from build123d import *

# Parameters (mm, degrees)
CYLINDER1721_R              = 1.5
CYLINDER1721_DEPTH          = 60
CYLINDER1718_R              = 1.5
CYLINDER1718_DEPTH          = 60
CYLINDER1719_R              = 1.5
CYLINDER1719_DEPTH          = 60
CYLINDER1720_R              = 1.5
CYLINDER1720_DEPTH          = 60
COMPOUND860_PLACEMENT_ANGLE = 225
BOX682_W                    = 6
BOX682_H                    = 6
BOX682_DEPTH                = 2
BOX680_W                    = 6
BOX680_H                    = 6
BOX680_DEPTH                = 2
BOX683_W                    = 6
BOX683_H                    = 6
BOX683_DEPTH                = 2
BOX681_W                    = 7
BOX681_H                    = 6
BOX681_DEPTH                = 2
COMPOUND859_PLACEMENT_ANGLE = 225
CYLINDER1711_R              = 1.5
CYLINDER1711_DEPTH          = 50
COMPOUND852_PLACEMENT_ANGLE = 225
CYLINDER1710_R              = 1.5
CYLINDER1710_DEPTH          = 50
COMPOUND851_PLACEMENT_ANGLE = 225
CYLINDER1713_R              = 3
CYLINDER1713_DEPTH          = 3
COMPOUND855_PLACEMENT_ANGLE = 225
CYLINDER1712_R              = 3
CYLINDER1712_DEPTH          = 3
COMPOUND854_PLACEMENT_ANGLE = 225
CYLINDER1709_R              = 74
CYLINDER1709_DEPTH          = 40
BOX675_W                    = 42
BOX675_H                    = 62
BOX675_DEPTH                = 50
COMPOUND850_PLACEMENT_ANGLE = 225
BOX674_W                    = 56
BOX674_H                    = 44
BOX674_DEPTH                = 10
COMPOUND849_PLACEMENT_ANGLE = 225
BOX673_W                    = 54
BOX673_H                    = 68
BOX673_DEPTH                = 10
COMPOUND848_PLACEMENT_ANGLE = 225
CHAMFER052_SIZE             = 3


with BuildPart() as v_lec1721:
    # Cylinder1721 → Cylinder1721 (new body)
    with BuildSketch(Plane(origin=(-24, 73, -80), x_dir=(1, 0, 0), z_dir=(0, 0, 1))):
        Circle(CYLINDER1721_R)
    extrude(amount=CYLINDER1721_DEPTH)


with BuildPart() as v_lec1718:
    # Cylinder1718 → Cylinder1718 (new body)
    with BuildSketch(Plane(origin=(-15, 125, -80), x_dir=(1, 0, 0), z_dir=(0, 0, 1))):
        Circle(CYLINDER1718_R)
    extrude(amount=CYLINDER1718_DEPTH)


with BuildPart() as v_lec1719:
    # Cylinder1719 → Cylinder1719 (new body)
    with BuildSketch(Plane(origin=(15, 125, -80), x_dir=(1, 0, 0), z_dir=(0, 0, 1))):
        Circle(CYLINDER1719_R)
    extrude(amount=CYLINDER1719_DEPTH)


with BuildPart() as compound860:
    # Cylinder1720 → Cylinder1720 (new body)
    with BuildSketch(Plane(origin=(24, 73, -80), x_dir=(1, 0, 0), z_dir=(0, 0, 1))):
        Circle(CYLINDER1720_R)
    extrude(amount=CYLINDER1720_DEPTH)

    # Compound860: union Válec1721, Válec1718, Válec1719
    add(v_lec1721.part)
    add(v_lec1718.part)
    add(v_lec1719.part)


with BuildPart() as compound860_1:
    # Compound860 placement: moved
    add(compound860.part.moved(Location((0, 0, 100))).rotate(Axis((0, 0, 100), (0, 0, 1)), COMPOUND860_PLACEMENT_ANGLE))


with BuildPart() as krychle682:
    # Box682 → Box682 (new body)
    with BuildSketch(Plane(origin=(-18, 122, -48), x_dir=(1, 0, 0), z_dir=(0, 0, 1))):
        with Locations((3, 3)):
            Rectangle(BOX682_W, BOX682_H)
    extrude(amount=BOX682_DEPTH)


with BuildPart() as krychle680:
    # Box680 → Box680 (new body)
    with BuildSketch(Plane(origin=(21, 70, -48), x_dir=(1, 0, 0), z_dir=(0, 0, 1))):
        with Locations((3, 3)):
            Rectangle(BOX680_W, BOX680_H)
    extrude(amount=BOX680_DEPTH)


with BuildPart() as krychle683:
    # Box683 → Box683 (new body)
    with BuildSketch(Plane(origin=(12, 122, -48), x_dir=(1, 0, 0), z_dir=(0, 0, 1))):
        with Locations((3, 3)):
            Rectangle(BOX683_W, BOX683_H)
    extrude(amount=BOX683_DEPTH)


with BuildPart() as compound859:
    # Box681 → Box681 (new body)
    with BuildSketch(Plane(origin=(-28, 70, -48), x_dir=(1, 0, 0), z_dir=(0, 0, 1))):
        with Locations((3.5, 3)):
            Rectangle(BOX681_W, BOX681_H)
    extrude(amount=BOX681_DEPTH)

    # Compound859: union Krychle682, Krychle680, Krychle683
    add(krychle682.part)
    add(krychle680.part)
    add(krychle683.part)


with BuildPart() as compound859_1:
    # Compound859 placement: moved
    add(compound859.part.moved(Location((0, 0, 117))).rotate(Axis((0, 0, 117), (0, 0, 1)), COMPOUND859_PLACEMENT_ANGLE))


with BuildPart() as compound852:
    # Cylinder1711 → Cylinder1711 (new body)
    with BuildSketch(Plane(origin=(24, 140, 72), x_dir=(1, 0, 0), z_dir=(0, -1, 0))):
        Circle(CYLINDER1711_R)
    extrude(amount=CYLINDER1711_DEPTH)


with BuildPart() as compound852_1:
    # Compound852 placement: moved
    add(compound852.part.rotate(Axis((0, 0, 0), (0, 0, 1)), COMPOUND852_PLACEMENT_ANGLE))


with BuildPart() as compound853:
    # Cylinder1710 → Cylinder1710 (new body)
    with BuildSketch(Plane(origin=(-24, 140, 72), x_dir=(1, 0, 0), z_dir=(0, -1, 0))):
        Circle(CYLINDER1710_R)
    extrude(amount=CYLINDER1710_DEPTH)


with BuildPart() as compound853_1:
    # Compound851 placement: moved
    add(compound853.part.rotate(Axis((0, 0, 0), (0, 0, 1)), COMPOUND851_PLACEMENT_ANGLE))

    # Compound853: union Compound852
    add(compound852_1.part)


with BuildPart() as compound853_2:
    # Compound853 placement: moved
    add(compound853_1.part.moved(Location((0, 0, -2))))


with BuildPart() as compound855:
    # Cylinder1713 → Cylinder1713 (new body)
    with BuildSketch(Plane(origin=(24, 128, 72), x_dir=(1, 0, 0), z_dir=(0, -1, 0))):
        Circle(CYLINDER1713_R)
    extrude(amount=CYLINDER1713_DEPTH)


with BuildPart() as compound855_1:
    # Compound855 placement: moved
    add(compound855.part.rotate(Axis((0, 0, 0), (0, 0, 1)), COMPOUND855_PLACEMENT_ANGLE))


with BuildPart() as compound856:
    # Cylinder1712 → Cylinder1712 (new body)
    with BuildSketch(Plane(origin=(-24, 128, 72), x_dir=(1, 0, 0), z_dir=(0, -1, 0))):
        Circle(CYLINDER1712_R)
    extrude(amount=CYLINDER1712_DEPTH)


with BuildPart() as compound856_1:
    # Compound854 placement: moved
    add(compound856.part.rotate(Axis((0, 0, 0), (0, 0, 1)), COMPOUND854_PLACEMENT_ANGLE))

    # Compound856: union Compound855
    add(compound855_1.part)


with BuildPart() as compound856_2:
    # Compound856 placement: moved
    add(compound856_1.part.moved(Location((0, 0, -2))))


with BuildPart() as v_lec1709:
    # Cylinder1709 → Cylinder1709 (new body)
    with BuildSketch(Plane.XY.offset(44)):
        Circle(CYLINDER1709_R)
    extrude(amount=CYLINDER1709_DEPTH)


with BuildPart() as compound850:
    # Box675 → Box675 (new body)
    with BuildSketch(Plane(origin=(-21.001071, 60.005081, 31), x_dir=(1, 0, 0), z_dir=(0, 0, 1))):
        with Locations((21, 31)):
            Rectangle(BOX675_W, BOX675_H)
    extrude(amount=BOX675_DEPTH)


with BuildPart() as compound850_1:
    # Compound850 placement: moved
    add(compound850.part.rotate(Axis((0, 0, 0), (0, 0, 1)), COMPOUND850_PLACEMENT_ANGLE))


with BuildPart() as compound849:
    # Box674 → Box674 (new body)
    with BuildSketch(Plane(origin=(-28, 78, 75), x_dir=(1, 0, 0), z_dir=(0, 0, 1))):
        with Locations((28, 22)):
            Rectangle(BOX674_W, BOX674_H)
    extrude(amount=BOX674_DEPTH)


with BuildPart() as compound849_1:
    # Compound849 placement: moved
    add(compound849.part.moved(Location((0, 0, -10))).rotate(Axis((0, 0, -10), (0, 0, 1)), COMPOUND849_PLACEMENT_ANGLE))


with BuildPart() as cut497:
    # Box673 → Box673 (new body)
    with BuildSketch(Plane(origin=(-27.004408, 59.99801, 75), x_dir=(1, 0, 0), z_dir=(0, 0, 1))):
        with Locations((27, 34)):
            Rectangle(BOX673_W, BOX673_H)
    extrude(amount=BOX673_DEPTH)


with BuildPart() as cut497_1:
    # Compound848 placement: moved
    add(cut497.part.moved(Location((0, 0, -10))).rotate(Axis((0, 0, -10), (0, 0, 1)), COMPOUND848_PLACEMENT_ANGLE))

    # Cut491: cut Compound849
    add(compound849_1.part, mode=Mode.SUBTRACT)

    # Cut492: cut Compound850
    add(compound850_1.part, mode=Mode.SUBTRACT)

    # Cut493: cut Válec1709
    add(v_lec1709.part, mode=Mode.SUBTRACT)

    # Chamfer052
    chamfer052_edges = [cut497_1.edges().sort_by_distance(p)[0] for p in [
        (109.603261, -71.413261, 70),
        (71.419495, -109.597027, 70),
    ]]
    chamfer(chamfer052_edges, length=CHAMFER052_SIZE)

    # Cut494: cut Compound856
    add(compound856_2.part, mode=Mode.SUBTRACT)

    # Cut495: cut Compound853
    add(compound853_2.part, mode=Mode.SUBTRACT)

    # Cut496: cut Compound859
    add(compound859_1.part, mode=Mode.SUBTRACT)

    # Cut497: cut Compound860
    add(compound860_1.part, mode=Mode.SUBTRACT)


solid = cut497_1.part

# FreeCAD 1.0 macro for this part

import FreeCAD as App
import Part
import Sketcher
from FreeCAD import Vector
Q = App.Units.Quantity


def edges_at(feature, points):
    """Names of the edges that pass closest to the given points."""
    edges = feature.Shape.Edges
    near = lambda p: min(range(len(edges)), key=lambda i: edges[i].distToShape(Part.Vertex(*p))[0])
    return sorted({f"Edge{near(p) + 1}" for p in points})


def add_polygon(sketch, points):
    """Adds a closed chain of lines whose ends are joined by coincident constraints."""
    first, n = sketch.GeometryCount, len(points)
    for a, b in zip(points, points[1:] + points[:1]):
        sketch.addGeometry(Part.LineSegment(App.Vector(*a, 0), App.Vector(*b, 0)), False)
    for i in range(n):
        sketch.addConstraint(Sketcher.Constraint("Coincident", first + i, 2, first + (i + 1) % n, 1))

doc = App.newDocument("Part")
params = doc.addObject("Spreadsheet::Sheet", "Params")
for row, (alias, value) in enumerate([
    ("sketch1_diameter", "3 mm"),
    ("pad1_length", "60 mm"),
    ("sketch2_diameter", "3 mm"),
    ("pad2_length", "60 mm"),
    ("sketch3_diameter", "3 mm"),
    ("pad3_length", "60 mm"),
    ("sketch4_diameter", "3 mm"),
    ("pad4_length", "60 mm"),
    ("sketch5_width", "6 mm"),
    ("pad5_length", "2 mm"),
    ("sketch6_width", "6 mm"),
    ("pad6_length", "2 mm"),
    ("sketch7_width", "6 mm"),
    ("pad7_length", "2 mm"),
    ("sketch8_width", "7 mm"),
    ("sketch8_height", "6 mm"),
    ("pad8_length", "2 mm"),
    ("sketch9_diameter", "3 mm"),
    ("pad9_length", "50 mm"),
    ("sketch10_diameter", "3 mm"),
    ("pad10_length", "50 mm"),
    ("sketch11_diameter", "6 mm"),
    ("pad11_length", "3 mm"),
    ("sketch12_diameter", "6 mm"),
    ("pad12_length", "3 mm"),
    ("sketch13_diameter", "148 mm"),
    ("pad13_length", "40 mm"),
    ("sketch14_width", "42 mm"),
    ("sketch14_height", "62 mm"),
    ("pad14_length", "50 mm"),
    ("sketch15_width", "56 mm"),
    ("sketch15_height", "44 mm"),
    ("pad15_length", "10 mm"),
    ("sketch16_width", "54 mm"),
    ("sketch16_height", "68 mm"),
    ("pad16_length", "10 mm"),
    ("chamfer_size", "3 mm"),
], start=1):
    params.set(f"A{row}", alias)
    params.set(f"B{row}", "=" + value)
    params.setAlias(f"B{row}", alias)

body = doc.addObject("PartDesign::Body", "Body")

# Sketch on XY plane
sketch1 = body.newObject("Sketcher::SketchObject", "Sketch")
sketch1.AttachmentSupport = (doc.getObject("XY_Plane"), [""])
sketch1.MapMode = "FlatFace"
sketch1.AttachmentOffset = App.Placement(Vector(0, 0, -80), App.Rotation())
sketch1.addGeometry(Part.Circle(Vector(-24, 73, 0), Vector(0, 0, 1), 1.5), False)
sketch1.addConstraint(Sketcher.Constraint("Diameter", 0, Q("3 mm")))
sketch1.addConstraint(Sketcher.Constraint("DistanceX", 0, 3, -1, 1, Q("24 mm")))
sketch1.addConstraint(Sketcher.Constraint("DistanceY", -1, 1, 0, 3, Q("73 mm")))
sketch1.setExpression("Constraints[0]", "Params.sketch1_diameter")
pad1 = body.newObject("PartDesign::Pad", "Pad")
pad1.Profile = sketch1
pad1.setExpression("Length", "Params.pad1_length")
body2 = doc.addObject("PartDesign::Body", "Body001")

# Sketch on XY plane
sketch2 = body2.newObject("Sketcher::SketchObject", "Sketch001")
sketch2.AttachmentSupport = (doc.getObject("XY_Plane001"), [""])
sketch2.MapMode = "FlatFace"
sketch2.AttachmentOffset = App.Placement(Vector(0, 0, -80), App.Rotation())
sketch2.addGeometry(Part.Circle(Vector(-15, 125, 0), Vector(0, 0, 1), 1.5), False)
sketch2.addConstraint(Sketcher.Constraint("Diameter", 0, Q("3 mm")))
sketch2.addConstraint(Sketcher.Constraint("DistanceX", 0, 3, -1, 1, Q("15 mm")))
sketch2.addConstraint(Sketcher.Constraint("DistanceY", -1, 1, 0, 3, Q("125 mm")))
sketch2.setExpression("Constraints[0]", "Params.sketch2_diameter")
pad2 = body2.newObject("PartDesign::Pad", "Pad001")
pad2.Profile = sketch2
pad2.setExpression("Length", "Params.pad2_length")
body3 = doc.addObject("PartDesign::Body", "Body002")

# Sketch on XY plane
sketch3 = body3.newObject("Sketcher::SketchObject", "Sketch002")
sketch3.AttachmentSupport = (doc.getObject("XY_Plane002"), [""])
sketch3.MapMode = "FlatFace"
sketch3.AttachmentOffset = App.Placement(Vector(0, 0, -80), App.Rotation())
sketch3.addGeometry(Part.Circle(Vector(15, 125, 0), Vector(0, 0, 1), 1.5), False)
sketch3.addConstraint(Sketcher.Constraint("Diameter", 0, Q("3 mm")))
sketch3.addConstraint(Sketcher.Constraint("DistanceX", -1, 1, 0, 3, Q("15 mm")))
sketch3.addConstraint(Sketcher.Constraint("DistanceY", -1, 1, 0, 3, Q("125 mm")))
sketch3.setExpression("Constraints[0]", "Params.sketch3_diameter")
pad3 = body3.newObject("PartDesign::Pad", "Pad002")
pad3.Profile = sketch3
pad3.setExpression("Length", "Params.pad3_length")
body4 = doc.addObject("PartDesign::Body", "Body003")
body4.AllowCompound = True

# Sketch on XY plane
sketch4 = body4.newObject("Sketcher::SketchObject", "Sketch003")
sketch4.AttachmentSupport = (doc.getObject("XY_Plane003"), [""])
sketch4.MapMode = "FlatFace"
sketch4.AttachmentOffset = App.Placement(Vector(0, 0, -80), App.Rotation())
sketch4.addGeometry(Part.Circle(Vector(24, 73, 0), Vector(0, 0, 1), 1.5), False)
sketch4.addConstraint(Sketcher.Constraint("Diameter", 0, Q("3 mm")))
sketch4.addConstraint(Sketcher.Constraint("DistanceX", -1, 1, 0, 3, Q("24 mm")))
sketch4.addConstraint(Sketcher.Constraint("DistanceY", -1, 1, 0, 3, Q("73 mm")))
sketch4.setExpression("Constraints[0]", "Params.sketch4_diameter")
pad4 = body4.newObject("PartDesign::Pad", "Pad003")
pad4.Profile = sketch4
pad4.setExpression("Length", "Params.pad4_length")
doc.recompute()

boolean = body4.newObject("PartDesign::Boolean", "Boolean")
boolean.Type = "Fuse"
boolean.addObjects([body])
doc.recompute()

boolean2 = body4.newObject("PartDesign::Boolean", "Boolean001")
boolean2.Type = "Fuse"
boolean2.addObjects([body2])
doc.recompute()

boolean3 = body4.newObject("PartDesign::Boolean", "Boolean002")
boolean3.Type = "Fuse"
boolean3.addObjects([body3])
body5 = doc.addObject("PartDesign::Body", "Body004")
body5.AllowCompound = True
doc.recompute()

body4.Placement = App.Placement(Vector(0, 0, 100), App.Rotation(Vector(0, 0, 1), 225))
boolean4 = body5.newObject("PartDesign::Boolean", "Boolean003")
boolean4.Type = "Fuse"
boolean4.addObjects([body4])
body6 = doc.addObject("PartDesign::Body", "Body005")

# Sketch on XY plane
sketch5 = body6.newObject("Sketcher::SketchObject", "Sketch004")
sketch5.AttachmentSupport = (doc.getObject("XY_Plane005"), [""])
sketch5.MapMode = "FlatFace"
sketch5.AttachmentOffset = App.Placement(Vector(0, 0, -48), App.Rotation())
add_polygon(sketch5, [(-18, 128), (-18, 122), (-12, 122), (-12, 128)])  # lines 0-3
sketch5.addConstraint(Sketcher.Constraint("Vertical", 0))
sketch5.addConstraint(Sketcher.Constraint("Horizontal", 1))
sketch5.addConstraint(Sketcher.Constraint("Vertical", 2))
sketch5.addConstraint(Sketcher.Constraint("Horizontal", 3))
sketch5.addConstraint(Sketcher.Constraint("Equal", 3, 0))
sketch5.addConstraint(Sketcher.Constraint("DistanceX", 1, 1, 1, 2, Q("6 mm")))
sketch5.addConstraint(Sketcher.Constraint("DistanceX", 0, 2, -1, 1, Q("18 mm")))
sketch5.addConstraint(Sketcher.Constraint("DistanceY", -1, 1, 0, 2, Q("122 mm")))
sketch5.setExpression("Constraints[9]", "Params.sketch5_width")
pad5 = body6.newObject("PartDesign::Pad", "Pad004")
pad5.Profile = sketch5
pad5.setExpression("Length", "Params.pad5_length")
body7 = doc.addObject("PartDesign::Body", "Body006")

# Sketch on XY plane
sketch6 = body7.newObject("Sketcher::SketchObject", "Sketch005")
sketch6.AttachmentSupport = (doc.getObject("XY_Plane006"), [""])
sketch6.MapMode = "FlatFace"
sketch6.AttachmentOffset = App.Placement(Vector(0, 0, -48), App.Rotation())
add_polygon(sketch6, [(21, 76), (21, 70), (27, 70), (27, 76)])  # lines 0-3
sketch6.addConstraint(Sketcher.Constraint("Vertical", 0))
sketch6.addConstraint(Sketcher.Constraint("Horizontal", 1))
sketch6.addConstraint(Sketcher.Constraint("Vertical", 2))
sketch6.addConstraint(Sketcher.Constraint("Horizontal", 3))
sketch6.addConstraint(Sketcher.Constraint("Equal", 3, 0))
sketch6.addConstraint(Sketcher.Constraint("DistanceX", 1, 1, 1, 2, Q("6 mm")))
sketch6.addConstraint(Sketcher.Constraint("DistanceX", -1, 1, 0, 2, Q("21 mm")))
sketch6.addConstraint(Sketcher.Constraint("DistanceY", -1, 1, 0, 2, Q("70 mm")))
sketch6.setExpression("Constraints[9]", "Params.sketch6_width")
pad6 = body7.newObject("PartDesign::Pad", "Pad005")
pad6.Profile = sketch6
pad6.setExpression("Length", "Params.pad6_length")
body8 = doc.addObject("PartDesign::Body", "Body007")

# Sketch on XY plane
sketch7 = body8.newObject("Sketcher::SketchObject", "Sketch006")
sketch7.AttachmentSupport = (doc.getObject("XY_Plane007"), [""])
sketch7.MapMode = "FlatFace"
sketch7.AttachmentOffset = App.Placement(Vector(0, 0, -48), App.Rotation())
add_polygon(sketch7, [(12, 128), (12, 122), (18, 122), (18, 128)])  # lines 0-3
sketch7.addConstraint(Sketcher.Constraint("Vertical", 0))
sketch7.addConstraint(Sketcher.Constraint("Horizontal", 1))
sketch7.addConstraint(Sketcher.Constraint("Vertical", 2))
sketch7.addConstraint(Sketcher.Constraint("Horizontal", 3))
sketch7.addConstraint(Sketcher.Constraint("Equal", 3, 0))
sketch7.addConstraint(Sketcher.Constraint("DistanceX", 1, 1, 1, 2, Q("6 mm")))
sketch7.addConstraint(Sketcher.Constraint("DistanceX", -1, 1, 0, 2, Q("12 mm")))
sketch7.addConstraint(Sketcher.Constraint("DistanceY", -1, 1, 0, 2, Q("122 mm")))
sketch7.setExpression("Constraints[9]", "Params.sketch7_width")
pad7 = body8.newObject("PartDesign::Pad", "Pad006")
pad7.Profile = sketch7
pad7.setExpression("Length", "Params.pad7_length")
body9 = doc.addObject("PartDesign::Body", "Body008")
body9.AllowCompound = True

# Sketch on XY plane
sketch8 = body9.newObject("Sketcher::SketchObject", "Sketch007")
sketch8.AttachmentSupport = (doc.getObject("XY_Plane008"), [""])
sketch8.MapMode = "FlatFace"
sketch8.AttachmentOffset = App.Placement(Vector(0, 0, -48), App.Rotation())
add_polygon(sketch8, [(-28, 76), (-28, 70), (-21, 70), (-21, 76)])  # lines 0-3
sketch8.addConstraint(Sketcher.Constraint("Vertical", 0))
sketch8.addConstraint(Sketcher.Constraint("Horizontal", 1))
sketch8.addConstraint(Sketcher.Constraint("Vertical", 2))
sketch8.addConstraint(Sketcher.Constraint("Horizontal", 3))
sketch8.addConstraint(Sketcher.Constraint("DistanceX", 1, 1, 1, 2, Q("7 mm")))
sketch8.addConstraint(Sketcher.Constraint("DistanceY", 0, 2, 0, 1, Q("6 mm")))
sketch8.addConstraint(Sketcher.Constraint("DistanceX", 0, 2, -1, 1, Q("28 mm")))
sketch8.addConstraint(Sketcher.Constraint("DistanceY", -1, 1, 0, 2, Q("70 mm")))
sketch8.setExpression("Constraints[8]", "Params.sketch8_width")
sketch8.setExpression("Constraints[9]", "Params.sketch8_height")
pad8 = body9.newObject("PartDesign::Pad", "Pad007")
pad8.Profile = sketch8
pad8.setExpression("Length", "Params.pad8_length")
doc.recompute()

boolean5 = body9.newObject("PartDesign::Boolean", "Boolean004")
boolean5.Type = "Fuse"
boolean5.addObjects([body6])
doc.recompute()

boolean6 = body9.newObject("PartDesign::Boolean", "Boolean005")
boolean6.Type = "Fuse"
boolean6.addObjects([body7])
doc.recompute()

boolean7 = body9.newObject("PartDesign::Boolean", "Boolean006")
boolean7.Type = "Fuse"
boolean7.addObjects([body8])
body10 = doc.addObject("PartDesign::Body", "Body009")
body10.AllowCompound = True
doc.recompute()

body9.Placement = App.Placement(Vector(0, 0, 117), App.Rotation(Vector(0, 0, 1), 225))
boolean8 = body10.newObject("PartDesign::Boolean", "Boolean007")
boolean8.Type = "Fuse"
boolean8.addObjects([body9])
body11 = doc.addObject("PartDesign::Body", "Body010")

# Sketch on XZ plane
sketch9 = body11.newObject("Sketcher::SketchObject", "Sketch008")
sketch9.AttachmentSupport = (doc.getObject("XZ_Plane010"), [""])
sketch9.MapMode = "FlatFace"
sketch9.AttachmentOffset = App.Placement(Vector(0, 0, -140), App.Rotation())
sketch9.addGeometry(Part.Circle(Vector(24, 72, 0), Vector(0, 0, 1), 1.5), False)
sketch9.addConstraint(Sketcher.Constraint("Diameter", 0, Q("3 mm")))
sketch9.addConstraint(Sketcher.Constraint("DistanceX", -1, 1, 0, 3, Q("24 mm")))
sketch9.addConstraint(Sketcher.Constraint("DistanceY", -1, 1, 0, 3, Q("72 mm")))
sketch9.setExpression("Constraints[0]", "Params.sketch9_diameter")
pad9 = body11.newObject("PartDesign::Pad", "Pad008")
pad9.Profile = sketch9
pad9.setExpression("Length", "Params.pad9_length")
body12 = doc.addObject("PartDesign::Body", "Body011")
doc.recompute()

body11.Placement = App.Placement(Vector(0, 0, 0), App.Rotation(Vector(0, 0, 1), 225))
boolean9 = body12.newObject("PartDesign::Boolean", "Boolean008")
boolean9.Type = "Fuse"
boolean9.addObjects([body11])
body13 = doc.addObject("PartDesign::Body", "Body012")

# Sketch on XZ plane
sketch10 = body13.newObject("Sketcher::SketchObject", "Sketch009")
sketch10.AttachmentSupport = (doc.getObject("XZ_Plane012"), [""])
sketch10.MapMode = "FlatFace"
sketch10.AttachmentOffset = App.Placement(Vector(0, 0, -140), App.Rotation())
sketch10.addGeometry(Part.Circle(Vector(-24, 72, 0), Vector(0, 0, 1), 1.5), False)
sketch10.addConstraint(Sketcher.Constraint("Diameter", 0, Q("3 mm")))
sketch10.addConstraint(Sketcher.Constraint("DistanceX", 0, 3, -1, 1, Q("24 mm")))
sketch10.addConstraint(Sketcher.Constraint("DistanceY", -1, 1, 0, 3, Q("72 mm")))
sketch10.setExpression("Constraints[0]", "Params.sketch10_diameter")
pad10 = body13.newObject("PartDesign::Pad", "Pad009")
pad10.Profile = sketch10
pad10.setExpression("Length", "Params.pad10_length")
body14 = doc.addObject("PartDesign::Body", "Body013")
body14.AllowCompound = True
doc.recompute()

body13.Placement = App.Placement(Vector(0, 0, 0), App.Rotation(Vector(0, 0, 1), 225))
boolean10 = body14.newObject("PartDesign::Boolean", "Boolean009")
boolean10.Type = "Fuse"
boolean10.addObjects([body13])
doc.recompute()

boolean11 = body14.newObject("PartDesign::Boolean", "Boolean010")
boolean11.Type = "Fuse"
boolean11.addObjects([body12])
body15 = doc.addObject("PartDesign::Body", "Body014")
body15.AllowCompound = True
doc.recompute()

body14.Placement = App.Placement(Vector(0, 0, -2), App.Rotation(Vector(0, 0, 1), 0))
boolean12 = body15.newObject("PartDesign::Boolean", "Boolean011")
boolean12.Type = "Fuse"
boolean12.addObjects([body14])
body16 = doc.addObject("PartDesign::Body", "Body015")

# Sketch on XZ plane
sketch11 = body16.newObject("Sketcher::SketchObject", "Sketch010")
sketch11.AttachmentSupport = (doc.getObject("XZ_Plane015"), [""])
sketch11.MapMode = "FlatFace"
sketch11.AttachmentOffset = App.Placement(Vector(0, 0, -128), App.Rotation())
sketch11.addGeometry(Part.Circle(Vector(24, 72, 0), Vector(0, 0, 1), 3), False)
sketch11.addConstraint(Sketcher.Constraint("Diameter", 0, Q("6 mm")))
sketch11.addConstraint(Sketcher.Constraint("DistanceX", -1, 1, 0, 3, Q("24 mm")))
sketch11.addConstraint(Sketcher.Constraint("DistanceY", -1, 1, 0, 3, Q("72 mm")))
sketch11.setExpression("Constraints[0]", "Params.sketch11_diameter")
pad11 = body16.newObject("PartDesign::Pad", "Pad010")
pad11.Profile = sketch11
pad11.setExpression("Length", "Params.pad11_length")
body17 = doc.addObject("PartDesign::Body", "Body016")
doc.recompute()

body16.Placement = App.Placement(Vector(0, 0, 0), App.Rotation(Vector(0, 0, 1), 225))
boolean13 = body17.newObject("PartDesign::Boolean", "Boolean012")
boolean13.Type = "Fuse"
boolean13.addObjects([body16])
body18 = doc.addObject("PartDesign::Body", "Body017")

# Sketch on XZ plane
sketch12 = body18.newObject("Sketcher::SketchObject", "Sketch011")
sketch12.AttachmentSupport = (doc.getObject("XZ_Plane017"), [""])
sketch12.MapMode = "FlatFace"
sketch12.AttachmentOffset = App.Placement(Vector(0, 0, -128), App.Rotation())
sketch12.addGeometry(Part.Circle(Vector(-24, 72, 0), Vector(0, 0, 1), 3), False)
sketch12.addConstraint(Sketcher.Constraint("Diameter", 0, Q("6 mm")))
sketch12.addConstraint(Sketcher.Constraint("DistanceX", 0, 3, -1, 1, Q("24 mm")))
sketch12.addConstraint(Sketcher.Constraint("DistanceY", -1, 1, 0, 3, Q("72 mm")))
sketch12.setExpression("Constraints[0]", "Params.sketch12_diameter")
pad12 = body18.newObject("PartDesign::Pad", "Pad011")
pad12.Profile = sketch12
pad12.setExpression("Length", "Params.pad12_length")
body19 = doc.addObject("PartDesign::Body", "Body018")
body19.AllowCompound = True
doc.recompute()

body18.Placement = App.Placement(Vector(0, 0, 0), App.Rotation(Vector(0, 0, 1), 225))
boolean14 = body19.newObject("PartDesign::Boolean", "Boolean013")
boolean14.Type = "Fuse"
boolean14.addObjects([body18])
doc.recompute()

boolean15 = body19.newObject("PartDesign::Boolean", "Boolean014")
boolean15.Type = "Fuse"
boolean15.addObjects([body17])
body20 = doc.addObject("PartDesign::Body", "Body019")
body20.AllowCompound = True
doc.recompute()

body19.Placement = App.Placement(Vector(0, 0, -2), App.Rotation(Vector(0, 0, 1), 0))
boolean16 = body20.newObject("PartDesign::Boolean", "Boolean015")
boolean16.Type = "Fuse"
boolean16.addObjects([body19])
body21 = doc.addObject("PartDesign::Body", "Body020")

# Sketch on XY plane
sketch13 = body21.newObject("Sketcher::SketchObject", "Sketch012")
sketch13.AttachmentSupport = (doc.getObject("XY_Plane020"), [""])
sketch13.MapMode = "FlatFace"
sketch13.AttachmentOffset = App.Placement(Vector(0, 0, 44), App.Rotation())
sketch13.addGeometry(Part.Circle(Vector(0, 0, 0), Vector(0, 0, 1), 74), False)
sketch13.addConstraint(Sketcher.Constraint("Coincident", 0, 3, -1, 1))
sketch13.addConstraint(Sketcher.Constraint("Diameter", 0, Q("148 mm")))
sketch13.setExpression("Constraints[1]", "Params.sketch13_diameter")
pad13 = body21.newObject("PartDesign::Pad", "Pad012")
pad13.Profile = sketch13
pad13.setExpression("Length", "Params.pad13_length")
body22 = doc.addObject("PartDesign::Body", "Body021")

# Sketch on XY plane
sketch14 = body22.newObject("Sketcher::SketchObject", "Sketch013")
sketch14.AttachmentSupport = (doc.getObject("XY_Plane021"), [""])
sketch14.MapMode = "FlatFace"
sketch14.AttachmentOffset = App.Placement(Vector(0, 0, 31), App.Rotation())
add_polygon(sketch14, [(-21.001071, 122.005081), (-21.001071, 60.005081), (20.998929, 60.005081), (20.998929, 122.005081)])  # lines 0-3
sketch14.addConstraint(Sketcher.Constraint("Vertical", 0))
sketch14.addConstraint(Sketcher.Constraint("Horizontal", 1))
sketch14.addConstraint(Sketcher.Constraint("Vertical", 2))
sketch14.addConstraint(Sketcher.Constraint("Horizontal", 3))
sketch14.addConstraint(Sketcher.Constraint("DistanceX", 1, 1, 1, 2, Q("42 mm")))
sketch14.addConstraint(Sketcher.Constraint("DistanceY", 0, 2, 0, 1, Q("62 mm")))
sketch14.addConstraint(Sketcher.Constraint("DistanceX", 0, 2, -1, 1, Q("21.001071 mm")))
sketch14.addConstraint(Sketcher.Constraint("DistanceY", -1, 1, 0, 2, Q("60.005081 mm")))
sketch14.setExpression("Constraints[8]", "Params.sketch14_width")
sketch14.setExpression("Constraints[9]", "Params.sketch14_height")
pad14 = body22.newObject("PartDesign::Pad", "Pad013")
pad14.Profile = sketch14
pad14.setExpression("Length", "Params.pad14_length")
body23 = doc.addObject("PartDesign::Body", "Body022")
doc.recompute()

body22.Placement = App.Placement(Vector(0, 0, 0), App.Rotation(Vector(0, 0, 1), 225))
boolean17 = body23.newObject("PartDesign::Boolean", "Boolean016")
boolean17.Type = "Fuse"
boolean17.addObjects([body22])
body24 = doc.addObject("PartDesign::Body", "Body023")

# Sketch on XY plane
sketch15 = body24.newObject("Sketcher::SketchObject", "Sketch014")
sketch15.AttachmentSupport = (doc.getObject("XY_Plane023"), [""])
sketch15.MapMode = "FlatFace"
sketch15.AttachmentOffset = App.Placement(Vector(0, 0, 75), App.Rotation())
add_polygon(sketch15, [(-28, 122), (-28, 78), (28, 78), (28, 122)])  # lines 0-3
sketch15.addConstraint(Sketcher.Constraint("Vertical", 0))
sketch15.addConstraint(Sketcher.Constraint("Horizontal", 1))
sketch15.addConstraint(Sketcher.Constraint("Vertical", 2))
sketch15.addConstraint(Sketcher.Constraint("Horizontal", 3))
sketch15.addConstraint(Sketcher.Constraint("DistanceX", 1, 1, 1, 2, Q("56 mm")))
sketch15.addConstraint(Sketcher.Constraint("DistanceY", 0, 2, 0, 1, Q("44 mm")))
sketch15.addConstraint(Sketcher.Constraint("DistanceX", 0, 2, -1, 1, Q("28 mm")))
sketch15.addConstraint(Sketcher.Constraint("DistanceY", -1, 1, 0, 2, Q("78 mm")))
sketch15.setExpression("Constraints[8]", "Params.sketch15_width")
sketch15.setExpression("Constraints[9]", "Params.sketch15_height")
pad15 = body24.newObject("PartDesign::Pad", "Pad014")
pad15.Profile = sketch15
pad15.setExpression("Length", "Params.pad15_length")
body25 = doc.addObject("PartDesign::Body", "Body024")
doc.recompute()

body24.Placement = App.Placement(Vector(0, 0, -10), App.Rotation(Vector(0, 0, 1), 225))
boolean18 = body25.newObject("PartDesign::Boolean", "Boolean017")
boolean18.Type = "Fuse"
boolean18.addObjects([body24])
body26 = doc.addObject("PartDesign::Body", "Body025")

# Sketch on XY plane
sketch16 = body26.newObject("Sketcher::SketchObject", "Sketch015")
sketch16.AttachmentSupport = (doc.getObject("XY_Plane025"), [""])
sketch16.MapMode = "FlatFace"
sketch16.AttachmentOffset = App.Placement(Vector(0, 0, 75), App.Rotation())
add_polygon(sketch16, [(-27.004408, 127.99801), (-27.004408, 59.99801), (26.995592, 59.99801), (26.995592, 127.99801)])  # lines 0-3
sketch16.addConstraint(Sketcher.Constraint("Vertical", 0))
sketch16.addConstraint(Sketcher.Constraint("Horizontal", 1))
sketch16.addConstraint(Sketcher.Constraint("Vertical", 2))
sketch16.addConstraint(Sketcher.Constraint("Horizontal", 3))
sketch16.addConstraint(Sketcher.Constraint("DistanceX", 1, 1, 1, 2, Q("54 mm")))
sketch16.addConstraint(Sketcher.Constraint("DistanceY", 0, 2, 0, 1, Q("68 mm")))
sketch16.addConstraint(Sketcher.Constraint("DistanceX", 0, 2, -1, 1, Q("27.004408 mm")))
sketch16.addConstraint(Sketcher.Constraint("DistanceY", -1, 1, 0, 2, Q("59.99801 mm")))
sketch16.setExpression("Constraints[8]", "Params.sketch16_width")
sketch16.setExpression("Constraints[9]", "Params.sketch16_height")
pad16 = body26.newObject("PartDesign::Pad", "Pad015")
pad16.Profile = sketch16
pad16.setExpression("Length", "Params.pad16_length")
body27 = doc.addObject("PartDesign::Body", "Body026")
body27.AllowCompound = True
doc.recompute()

body26.Placement = App.Placement(Vector(0, 0, -10), App.Rotation(Vector(0, 0, 1), 225))
boolean19 = body27.newObject("PartDesign::Boolean", "Boolean018")
boolean19.Type = "Fuse"
boolean19.addObjects([body26])
doc.recompute()

boolean20 = body27.newObject("PartDesign::Boolean", "Boolean019")
boolean20.Type = "Cut"
boolean20.addObjects([body25])
doc.recompute()

boolean21 = body27.newObject("PartDesign::Boolean", "Boolean020")
boolean21.Type = "Cut"
boolean21.addObjects([body23])
doc.recompute()

boolean22 = body27.newObject("PartDesign::Boolean", "Boolean021")
boolean22.Type = "Cut"
boolean22.addObjects([body21])
doc.recompute()

chamfer = body27.newObject("PartDesign::Chamfer", "Chamfer")
chamfer.Base = (boolean22, edges_at(boolean22, [(109.603, -71.413, 70), (71.419, -109.597, 70)]))
chamfer.setExpression("Size", "Params.chamfer_size")
doc.recompute()

boolean23 = body27.newObject("PartDesign::Boolean", "Boolean022")
boolean23.Type = "Cut"
boolean23.addObjects([body20])
doc.recompute()

boolean24 = body27.newObject("PartDesign::Boolean", "Boolean023")
boolean24.Type = "Cut"
boolean24.addObjects([body15])
doc.recompute()

boolean25 = body27.newObject("PartDesign::Boolean", "Boolean024")
boolean25.Type = "Cut"
boolean25.addObjects([body10])
doc.recompute()

boolean26 = body27.newObject("PartDesign::Boolean", "Boolean025")
boolean26.Type = "Cut"
boolean26.addObjects([body5])

doc.recompute()
